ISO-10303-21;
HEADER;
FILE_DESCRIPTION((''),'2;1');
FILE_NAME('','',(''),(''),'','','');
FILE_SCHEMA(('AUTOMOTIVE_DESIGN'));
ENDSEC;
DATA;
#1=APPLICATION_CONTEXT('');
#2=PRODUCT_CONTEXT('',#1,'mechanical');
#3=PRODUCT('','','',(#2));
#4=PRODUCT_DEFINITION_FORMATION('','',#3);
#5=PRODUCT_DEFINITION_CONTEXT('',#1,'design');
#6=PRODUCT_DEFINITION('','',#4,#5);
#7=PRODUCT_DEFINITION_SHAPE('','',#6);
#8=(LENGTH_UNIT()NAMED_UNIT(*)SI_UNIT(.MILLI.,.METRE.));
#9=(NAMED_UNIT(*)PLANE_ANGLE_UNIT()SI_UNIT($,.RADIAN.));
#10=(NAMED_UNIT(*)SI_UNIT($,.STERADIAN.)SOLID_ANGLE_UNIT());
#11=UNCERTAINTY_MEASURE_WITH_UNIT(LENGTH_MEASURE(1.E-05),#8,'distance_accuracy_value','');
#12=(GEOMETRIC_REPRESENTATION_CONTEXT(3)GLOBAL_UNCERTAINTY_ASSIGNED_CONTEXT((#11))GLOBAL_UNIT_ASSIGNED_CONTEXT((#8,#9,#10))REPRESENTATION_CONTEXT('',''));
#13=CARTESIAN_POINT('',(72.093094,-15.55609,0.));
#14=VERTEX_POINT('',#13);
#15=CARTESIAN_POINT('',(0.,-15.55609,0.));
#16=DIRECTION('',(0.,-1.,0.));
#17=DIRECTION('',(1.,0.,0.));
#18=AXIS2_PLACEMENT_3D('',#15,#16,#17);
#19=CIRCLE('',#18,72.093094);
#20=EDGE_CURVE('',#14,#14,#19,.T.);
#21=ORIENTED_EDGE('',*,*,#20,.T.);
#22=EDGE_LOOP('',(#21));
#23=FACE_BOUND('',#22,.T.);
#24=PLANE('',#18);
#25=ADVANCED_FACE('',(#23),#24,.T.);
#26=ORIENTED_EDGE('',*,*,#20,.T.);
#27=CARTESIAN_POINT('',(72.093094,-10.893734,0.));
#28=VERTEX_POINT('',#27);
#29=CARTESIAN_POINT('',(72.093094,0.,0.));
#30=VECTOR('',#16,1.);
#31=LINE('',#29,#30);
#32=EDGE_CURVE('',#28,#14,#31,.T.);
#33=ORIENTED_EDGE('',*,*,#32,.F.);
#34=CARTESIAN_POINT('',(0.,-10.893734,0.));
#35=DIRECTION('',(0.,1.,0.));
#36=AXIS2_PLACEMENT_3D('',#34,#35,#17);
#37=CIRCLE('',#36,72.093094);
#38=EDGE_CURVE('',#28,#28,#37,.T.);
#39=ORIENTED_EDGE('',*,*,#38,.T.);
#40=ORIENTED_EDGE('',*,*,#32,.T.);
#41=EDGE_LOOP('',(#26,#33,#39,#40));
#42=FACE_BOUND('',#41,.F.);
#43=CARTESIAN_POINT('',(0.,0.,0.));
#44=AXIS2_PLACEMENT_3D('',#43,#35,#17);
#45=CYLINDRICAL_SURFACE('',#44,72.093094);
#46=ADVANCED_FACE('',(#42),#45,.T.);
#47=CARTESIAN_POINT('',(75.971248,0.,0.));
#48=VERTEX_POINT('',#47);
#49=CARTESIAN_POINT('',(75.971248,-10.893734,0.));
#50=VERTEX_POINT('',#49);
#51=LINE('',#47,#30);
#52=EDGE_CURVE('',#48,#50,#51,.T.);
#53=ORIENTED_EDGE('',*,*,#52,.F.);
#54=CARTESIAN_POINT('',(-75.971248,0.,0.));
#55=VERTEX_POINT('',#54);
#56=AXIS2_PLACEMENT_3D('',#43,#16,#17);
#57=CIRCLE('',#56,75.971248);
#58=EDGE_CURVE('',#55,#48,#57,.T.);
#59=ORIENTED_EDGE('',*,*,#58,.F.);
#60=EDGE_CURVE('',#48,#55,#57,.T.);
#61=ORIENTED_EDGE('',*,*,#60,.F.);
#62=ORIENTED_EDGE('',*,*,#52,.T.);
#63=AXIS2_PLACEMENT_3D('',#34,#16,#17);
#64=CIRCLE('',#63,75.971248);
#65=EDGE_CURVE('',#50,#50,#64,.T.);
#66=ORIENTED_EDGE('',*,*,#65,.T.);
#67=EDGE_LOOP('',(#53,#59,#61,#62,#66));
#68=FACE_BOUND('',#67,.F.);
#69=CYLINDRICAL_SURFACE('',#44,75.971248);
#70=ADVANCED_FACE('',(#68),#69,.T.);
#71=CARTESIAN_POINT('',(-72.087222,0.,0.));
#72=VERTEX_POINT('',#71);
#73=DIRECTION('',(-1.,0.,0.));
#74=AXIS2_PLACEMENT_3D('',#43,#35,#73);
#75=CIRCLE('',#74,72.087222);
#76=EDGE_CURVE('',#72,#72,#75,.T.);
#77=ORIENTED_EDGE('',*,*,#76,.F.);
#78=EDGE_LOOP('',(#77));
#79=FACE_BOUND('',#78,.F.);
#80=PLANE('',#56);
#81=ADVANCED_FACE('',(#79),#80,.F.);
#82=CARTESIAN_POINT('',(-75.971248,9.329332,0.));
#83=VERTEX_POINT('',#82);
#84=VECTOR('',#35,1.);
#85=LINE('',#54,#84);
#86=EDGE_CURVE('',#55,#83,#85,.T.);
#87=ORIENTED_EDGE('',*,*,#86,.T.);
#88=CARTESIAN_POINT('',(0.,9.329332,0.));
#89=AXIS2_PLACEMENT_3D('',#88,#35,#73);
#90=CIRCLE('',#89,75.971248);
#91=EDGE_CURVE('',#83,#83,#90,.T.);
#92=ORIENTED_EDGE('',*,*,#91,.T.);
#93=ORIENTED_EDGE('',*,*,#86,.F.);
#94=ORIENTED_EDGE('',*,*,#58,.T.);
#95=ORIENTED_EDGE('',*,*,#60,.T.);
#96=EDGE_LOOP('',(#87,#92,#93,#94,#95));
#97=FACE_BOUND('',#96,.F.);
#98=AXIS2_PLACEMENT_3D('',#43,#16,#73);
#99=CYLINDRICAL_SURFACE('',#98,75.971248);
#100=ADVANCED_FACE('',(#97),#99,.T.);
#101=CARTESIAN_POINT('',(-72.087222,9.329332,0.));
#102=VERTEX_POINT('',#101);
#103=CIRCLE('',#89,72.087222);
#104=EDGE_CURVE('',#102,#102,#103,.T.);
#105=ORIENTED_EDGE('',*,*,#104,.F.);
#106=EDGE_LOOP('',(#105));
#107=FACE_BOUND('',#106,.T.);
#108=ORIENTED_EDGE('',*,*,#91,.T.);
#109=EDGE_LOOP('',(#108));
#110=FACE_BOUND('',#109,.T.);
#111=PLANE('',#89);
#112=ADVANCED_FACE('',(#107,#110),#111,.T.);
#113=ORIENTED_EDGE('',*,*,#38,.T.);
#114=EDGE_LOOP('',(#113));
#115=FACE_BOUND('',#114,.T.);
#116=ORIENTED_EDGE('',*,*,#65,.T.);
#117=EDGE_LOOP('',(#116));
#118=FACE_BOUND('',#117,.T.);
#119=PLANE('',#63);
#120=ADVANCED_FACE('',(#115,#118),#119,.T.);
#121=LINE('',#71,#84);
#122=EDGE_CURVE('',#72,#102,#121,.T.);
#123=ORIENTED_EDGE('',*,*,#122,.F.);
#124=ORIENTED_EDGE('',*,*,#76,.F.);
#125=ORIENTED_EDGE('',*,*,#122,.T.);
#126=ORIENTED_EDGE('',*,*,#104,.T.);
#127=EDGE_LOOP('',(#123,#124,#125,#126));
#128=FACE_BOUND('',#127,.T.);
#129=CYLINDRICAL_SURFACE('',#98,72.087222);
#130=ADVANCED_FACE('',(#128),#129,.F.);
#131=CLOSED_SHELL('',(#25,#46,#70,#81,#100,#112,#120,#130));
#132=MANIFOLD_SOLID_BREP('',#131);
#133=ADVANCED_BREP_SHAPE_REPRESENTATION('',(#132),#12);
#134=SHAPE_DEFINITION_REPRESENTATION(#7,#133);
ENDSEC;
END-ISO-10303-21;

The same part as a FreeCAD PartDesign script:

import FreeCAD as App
import Part
import Sketcher
from FreeCAD import Vector

doc = App.newDocument("Part")
body = doc.addObject("PartDesign::Body", "Body")

# Sketch on XZ plane
sketch1 = body.newObject("Sketcher::SketchObject", "Sketch")
sketch1.AttachmentSupport = (doc.getObject("XZ_Plane"), [""])
sketch1.MapMode = "FlatFace"
sketch1.addGeometry([
    Part.Circle(Vector(0, 0, 0), Vector(0, 0, 1), 76),
    Part.Circle(Vector(0, 0, 0), Vector(0, 0, 1), 71),
], False)
sketch1.addConstraint([
    Sketcher.Constraint("Coincident", 0, 3, -1, 1),
    Sketcher.Constraint("Coincident", 1, 3, -1, 1),
    Sketcher.Constraint("Diameter", 0, 151.942496),
    Sketcher.Constraint("Diameter", 1, 141.282234),
])
pad1 = body.newObject("PartDesign::Pad", "Pad")
pad1.Profile = sketch1
pad1.Length = 10.893734

# Sketch on XZ plane
sketch2 = body.newObject("Sketcher::SketchObject", "Sketch001")
sketch2.AttachmentSupport = (doc.getObject("XZ_Plane"), [""])
sketch2.MapMode = "FlatFace"
sketch2.addGeometry(Part.Circle(Vector(0, 0, 0), Vector(0, 0, 1), 72), False)
sketch2.addConstraint([
    Sketcher.Constraint("Coincident", 0, 3, -1, 1),
    Sketcher.Constraint("Diameter", 0, 144.186188),
])
pad2 = body.newObject("PartDesign::Pad", "Pad001")
pad2.Profile = sketch2
pad2.Length = 15.55609

# Sketch on XZ plane
sketch3 = body.newObject("Sketcher::SketchObject", "Sketch002")
sketch3.AttachmentSupport = (doc.getObject("XZ_Plane"), [""])
sketch3.MapMode = "FlatFace"
sketch3.addGeometry([
    Part.Circle(Vector(0, 0, 0), Vector(0, 0, 1), 76),
    Part.Circle(Vector(0, 0, 0), Vector(0, 0, 1), 72),
], False)
sketch3.addConstraint([
    Sketcher.Constraint("Coincident", 0, 3, -1, 1),
    Sketcher.Constraint("Coincident", 1, 3, -1, 1),
    Sketcher.Constraint("Diameter", 0, 151.942496),
    Sketcher.Constraint("Diameter", 1, 144.174444),
])
pad3 = body.newObject("PartDesign::Pad", "Pad002")
pad3.Profile = sketch3
pad3.Length = 9.329332
pad3.Reversed = True

doc.recompute()
